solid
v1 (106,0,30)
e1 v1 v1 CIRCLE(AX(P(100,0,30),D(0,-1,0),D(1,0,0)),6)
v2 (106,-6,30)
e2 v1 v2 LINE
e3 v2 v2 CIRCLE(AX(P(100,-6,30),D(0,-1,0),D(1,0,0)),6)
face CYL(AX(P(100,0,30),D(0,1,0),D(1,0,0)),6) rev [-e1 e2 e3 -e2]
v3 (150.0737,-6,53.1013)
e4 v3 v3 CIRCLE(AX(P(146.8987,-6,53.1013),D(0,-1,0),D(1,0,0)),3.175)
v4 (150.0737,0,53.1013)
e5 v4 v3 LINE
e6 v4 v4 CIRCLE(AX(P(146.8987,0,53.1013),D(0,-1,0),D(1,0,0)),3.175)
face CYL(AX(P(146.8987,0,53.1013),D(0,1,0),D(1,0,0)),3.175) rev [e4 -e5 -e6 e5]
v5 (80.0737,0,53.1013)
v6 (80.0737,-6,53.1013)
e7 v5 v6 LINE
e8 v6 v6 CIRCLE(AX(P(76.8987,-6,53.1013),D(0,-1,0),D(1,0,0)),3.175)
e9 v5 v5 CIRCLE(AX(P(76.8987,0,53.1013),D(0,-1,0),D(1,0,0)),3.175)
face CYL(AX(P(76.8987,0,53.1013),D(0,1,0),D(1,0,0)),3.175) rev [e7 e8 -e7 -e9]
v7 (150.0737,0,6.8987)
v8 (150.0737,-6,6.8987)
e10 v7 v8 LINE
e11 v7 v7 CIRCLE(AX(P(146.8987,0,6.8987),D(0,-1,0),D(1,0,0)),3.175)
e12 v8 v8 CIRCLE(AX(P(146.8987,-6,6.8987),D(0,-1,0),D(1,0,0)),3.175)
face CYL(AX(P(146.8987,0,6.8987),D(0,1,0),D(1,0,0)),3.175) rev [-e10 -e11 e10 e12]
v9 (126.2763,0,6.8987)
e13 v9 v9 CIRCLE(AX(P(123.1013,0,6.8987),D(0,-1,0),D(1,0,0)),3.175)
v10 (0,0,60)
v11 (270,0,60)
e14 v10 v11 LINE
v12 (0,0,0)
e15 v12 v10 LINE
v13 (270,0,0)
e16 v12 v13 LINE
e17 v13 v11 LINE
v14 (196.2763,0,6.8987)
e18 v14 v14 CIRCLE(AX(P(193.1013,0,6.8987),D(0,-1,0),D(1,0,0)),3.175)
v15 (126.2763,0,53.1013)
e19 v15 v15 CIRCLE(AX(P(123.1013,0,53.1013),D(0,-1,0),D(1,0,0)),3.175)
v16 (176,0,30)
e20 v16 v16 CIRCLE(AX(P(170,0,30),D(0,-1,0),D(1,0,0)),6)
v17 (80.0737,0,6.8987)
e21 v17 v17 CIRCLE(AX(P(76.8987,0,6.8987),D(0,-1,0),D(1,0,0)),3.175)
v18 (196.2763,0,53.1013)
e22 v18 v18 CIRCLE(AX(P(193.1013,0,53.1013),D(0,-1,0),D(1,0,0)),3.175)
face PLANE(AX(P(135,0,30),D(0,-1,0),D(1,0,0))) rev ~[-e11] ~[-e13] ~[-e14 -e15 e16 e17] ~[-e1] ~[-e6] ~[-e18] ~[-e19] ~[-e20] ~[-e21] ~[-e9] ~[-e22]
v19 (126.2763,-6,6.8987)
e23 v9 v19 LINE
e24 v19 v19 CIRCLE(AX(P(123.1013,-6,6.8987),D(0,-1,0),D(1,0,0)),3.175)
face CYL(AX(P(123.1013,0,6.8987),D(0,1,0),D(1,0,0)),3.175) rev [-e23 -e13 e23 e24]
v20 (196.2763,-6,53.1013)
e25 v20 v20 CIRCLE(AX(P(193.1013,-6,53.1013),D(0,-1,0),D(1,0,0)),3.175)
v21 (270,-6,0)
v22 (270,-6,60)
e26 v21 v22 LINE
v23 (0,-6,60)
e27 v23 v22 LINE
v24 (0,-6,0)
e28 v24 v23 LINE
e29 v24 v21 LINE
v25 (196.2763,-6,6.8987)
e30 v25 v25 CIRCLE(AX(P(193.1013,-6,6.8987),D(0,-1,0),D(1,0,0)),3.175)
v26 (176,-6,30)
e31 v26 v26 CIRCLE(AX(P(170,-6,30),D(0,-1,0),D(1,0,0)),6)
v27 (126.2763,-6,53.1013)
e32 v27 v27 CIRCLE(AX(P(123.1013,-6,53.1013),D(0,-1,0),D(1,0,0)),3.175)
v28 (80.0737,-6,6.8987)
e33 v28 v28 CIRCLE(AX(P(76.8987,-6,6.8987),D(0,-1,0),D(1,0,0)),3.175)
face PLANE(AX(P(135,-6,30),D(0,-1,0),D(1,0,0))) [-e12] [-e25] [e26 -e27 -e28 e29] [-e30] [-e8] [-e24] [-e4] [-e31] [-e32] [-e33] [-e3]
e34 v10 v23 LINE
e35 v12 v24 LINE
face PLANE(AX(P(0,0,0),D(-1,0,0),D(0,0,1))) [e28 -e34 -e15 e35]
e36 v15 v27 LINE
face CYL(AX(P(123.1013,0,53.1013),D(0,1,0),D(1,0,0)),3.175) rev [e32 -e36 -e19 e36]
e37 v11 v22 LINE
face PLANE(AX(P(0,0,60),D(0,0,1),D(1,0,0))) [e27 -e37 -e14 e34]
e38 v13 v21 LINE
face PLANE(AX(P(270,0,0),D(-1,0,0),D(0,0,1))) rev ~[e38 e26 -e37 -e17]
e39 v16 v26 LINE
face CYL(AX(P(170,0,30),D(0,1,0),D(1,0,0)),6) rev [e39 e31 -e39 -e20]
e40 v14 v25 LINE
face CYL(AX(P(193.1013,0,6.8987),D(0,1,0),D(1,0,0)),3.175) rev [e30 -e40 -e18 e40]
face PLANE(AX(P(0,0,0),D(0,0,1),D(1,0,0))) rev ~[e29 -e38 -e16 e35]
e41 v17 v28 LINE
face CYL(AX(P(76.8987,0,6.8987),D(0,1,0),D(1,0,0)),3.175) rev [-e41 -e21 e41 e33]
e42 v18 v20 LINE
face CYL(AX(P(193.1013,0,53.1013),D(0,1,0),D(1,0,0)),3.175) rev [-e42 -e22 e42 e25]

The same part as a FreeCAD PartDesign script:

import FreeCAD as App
import Part
import Sketcher

V = App.Vector


def add_polygon(sketch, points):
    """Adds a closed chain of lines whose ends are joined by coincident constraints."""
    first, n = sketch.GeometryCount, len(points)
    for a, b in zip(points, points[1:] + points[:1]):
        sketch.addGeometry(Part.LineSegment(App.Vector(*a, 0), App.Vector(*b, 0)), False)
    for i in range(n):
        sketch.addConstraint(Sketcher.Constraint("Coincident", first + i, 2, first + (i + 1) % n, 1))

doc = App.newDocument("Part")
params = doc.addObject("Spreadsheet::Sheet", "Params")
for row, (alias, value) in enumerate([
    ("sketch1_diameter", "12 mm"),
    ("sketch1_diameter2", "6.35 mm"),
    ("sketch1_width", "270 mm"),
    ("sketch1_height", "60 mm"),
    ("pad1_length", "6 mm"),
], start=1):
    params.set(f"A{row}", alias)
    params.set(f"B{row}", "=" + value)
    params.setAlias(f"B{row}", alias)

body = doc.addObject("PartDesign::Body", "Body")

# Sketch on XZ plane
sketch1 = body.newObject("Sketcher::SketchObject", "Sketch")
sketch1.AttachmentSupport = (doc.getObject("XZ_Plane"), [""])
sketch1.MapMode = "FlatFace"
add_polygon(sketch1, [(0, 60), (0, 0), (270, 0), (270, 60)])  # lines 0-3
sketch1.addGeometry(Part.Circle(V(76.9, 6.9, 0), V(0, 0, 1), 3.2), False)  # 4
sketch1.addGeometry(Part.Circle(V(123.1, 6.9, 0), V(0, 0, 1), 3.2), False)  # 5
sketch1.addGeometry(Part.Circle(V(146.9, 6.9, 0), V(0, 0, 1), 3.2), False)  # 6
sketch1.addGeometry(Part.Circle(V(193.1, 6.9, 0), V(0, 0, 1), 3.2), False)  # 7
sketch1.addGeometry(Part.Circle(V(100, 30, 0), V(0, 0, 1), 6), False)  # 8
sketch1.addGeometry(Part.Circle(V(76.9, 53.1, 0), V(0, 0, 1), 3.2), False)  # 9
sketch1.addGeometry(Part.Circle(V(123.1, 53.1, 0), V(0, 0, 1), 3.2), False)  # 10
sketch1.addGeometry(Part.Circle(V(170, 30, 0), V(0, 0, 1), 6), False)  # 11
sketch1.addGeometry(Part.Circle(V(146.9, 53.1, 0), V(0, 0, 1), 3.2), False)  # 12
sketch1.addGeometry(Part.Circle(V(193.1, 53.1, 0), V(0, 0, 1), 3.2), False)  # 13
sketch1.addConstraint([
    Sketcher.Constraint("Vertical", 0),
    Sketcher.Constraint("Horizontal", 1),
    Sketcher.Constraint("Vertical", 2),
    Sketcher.Constraint("Horizontal", 3),
    Sketcher.Constraint("Coincident", 0, 2, -1, 1),
    Sketcher.Constraint("Equal", 4, 5),
    Sketcher.Constraint("Equal", 5, 6),
    Sketcher.Constraint("Equal", 6, 7),
    Sketcher.Constraint("Equal", 7, 9),
    Sketcher.Constraint("Equal", 9, 10),
    Sketcher.Constraint("Equal", 8, 11),
    Sketcher.Constraint("Equal", 10, 12),
    Sketcher.Constraint("Equal", 12, 13),
    Sketcher.Constraint("Horizontal", 4, 3, 5, 3),
    Sketcher.Constraint("Horizontal", 5, 3, 6, 3),
    Sketcher.Constraint("Horizontal", 6, 3, 7, 3),
    Sketcher.Constraint("Horizontal", 9, 3, 10, 3),
    Sketcher.Constraint("Horizontal", 8, 3, 11, 3),
    Sketcher.Constraint("Horizontal", 10, 3, 12, 3),
    Sketcher.Constraint("Horizontal", 12, 3, 13, 3),
    Sketcher.Constraint("Vertical", 4, 3, 9, 3),
    Sketcher.Constraint("Vertical", 5, 3, 10, 3),
    Sketcher.Constraint("Vertical", 6, 3, 12, 3),
    Sketcher.Constraint("Vertical", 7, 3, 13, 3),
    Sketcher.Constraint("Diameter", 8, 12.0),
    Sketcher.Constraint("Diameter", 4, 6.35),
    Sketcher.Constraint("DistanceX", 1, 1, 1, 2, 270.0),
    Sketcher.Constraint("DistanceY", 0, 2, 0, 1, 60.0),
    Sketcher.Constraint("DistanceX", -1, 1, 8, 3, 100.0),
    Sketcher.Constraint("DistanceY", -1, 1, 8, 3, 30.0),
    Sketcher.Constraint("DistanceX", -1, 1, 11, 3, 170.0),
    Sketcher.Constraint("DistanceX", 4, 3, 6, 3, 70.0),
    Sketcher.Constraint("DistanceX", 5, 3, 7, 3, 70.0),
    Sketcher.Constraint("DistanceX", -1, 1, 4, 3, 76.8987),
    Sketcher.Constraint("DistanceY", -1, 1, 4, 3, 6.8987),
    Sketcher.Constraint("DistanceX", -1, 1, 5, 3, 123.1013),
    Sketcher.Constraint("DistanceY", -1, 1, 9, 3, 53.1013),
])
sketch1.setExpression("Constraints[28]", "Params.sketch1_diameter")
sketch1.setExpression("Constraints[29]", "Params.sketch1_diameter2")
sketch1.setExpression("Constraints[30]", "Params.sketch1_width")
sketch1.setExpression("Constraints[31]", "Params.sketch1_height")
pad1 = body.newObject("PartDesign::Pad", "Pad")
pad1.Profile = sketch1
pad1.setExpression("Length", "Params.pad1_length")

doc.recompute()
